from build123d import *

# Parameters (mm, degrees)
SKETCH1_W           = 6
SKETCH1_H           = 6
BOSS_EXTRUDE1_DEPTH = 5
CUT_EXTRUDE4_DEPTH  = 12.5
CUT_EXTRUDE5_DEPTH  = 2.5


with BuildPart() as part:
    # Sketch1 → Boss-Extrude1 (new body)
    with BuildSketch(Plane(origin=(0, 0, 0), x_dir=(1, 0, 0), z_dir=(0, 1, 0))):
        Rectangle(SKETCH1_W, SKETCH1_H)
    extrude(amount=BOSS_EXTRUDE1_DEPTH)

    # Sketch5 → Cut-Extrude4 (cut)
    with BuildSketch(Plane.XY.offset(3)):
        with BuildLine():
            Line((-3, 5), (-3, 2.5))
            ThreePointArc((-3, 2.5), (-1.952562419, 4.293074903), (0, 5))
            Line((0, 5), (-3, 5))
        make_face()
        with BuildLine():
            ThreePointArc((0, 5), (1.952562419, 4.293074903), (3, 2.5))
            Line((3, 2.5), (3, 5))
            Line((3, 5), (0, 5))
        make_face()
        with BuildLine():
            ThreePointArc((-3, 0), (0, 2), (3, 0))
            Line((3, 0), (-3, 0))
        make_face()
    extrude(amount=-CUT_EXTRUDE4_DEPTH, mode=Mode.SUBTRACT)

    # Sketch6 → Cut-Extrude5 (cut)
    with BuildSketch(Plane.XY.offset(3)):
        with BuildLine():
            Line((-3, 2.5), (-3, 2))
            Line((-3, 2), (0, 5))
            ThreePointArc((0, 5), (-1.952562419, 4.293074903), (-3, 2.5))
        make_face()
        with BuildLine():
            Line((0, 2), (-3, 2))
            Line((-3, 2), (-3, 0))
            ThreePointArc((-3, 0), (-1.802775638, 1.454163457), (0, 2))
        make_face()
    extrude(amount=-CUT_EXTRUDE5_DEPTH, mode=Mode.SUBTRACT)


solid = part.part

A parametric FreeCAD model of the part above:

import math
import FreeCAD as App
import Part
import Sketcher
from FreeCAD import Vector
Q = App.Units.Quantity


def add_polygon(sketch, points):
    """Adds a closed chain of lines whose ends are joined by coincident constraints."""
    first, n = sketch.GeometryCount, len(points)
    for a, b in zip(points, points[1:] + points[:1]):
        sketch.addGeometry(Part.LineSegment(App.Vector(*a, 0), App.Vector(*b, 0)), False)
    for i in range(n):
        sketch.addConstraint(Sketcher.Constraint("Coincident", first + i, 2, first + (i + 1) % n, 1))

doc = App.newDocument("Part")
params = doc.addObject("Spreadsheet::Sheet", "Params")
for row, (alias, value) in enumerate([
    ("sketch1_width", "6 mm"),
    ("pad1_length", "5 mm"),
    ("sketch2_width", "3 mm"),
    ("sketch2_radius", "3.05 mm"),
    ("sketch2_radius2", "3.25 mm"),
    ("pocket1_length", "12.5 mm"),
    ("sketch3_width", "3 mm"),
    ("sketch3_height", "2 mm"),
    ("sketch3_radius", "3.05 mm"),
    ("pocket2_length", "2.5 mm"),
], start=1):
    params.set(f"A{row}", alias)
    params.set(f"B{row}", "=" + value)
    params.setAlias(f"B{row}", alias)

body = doc.addObject("PartDesign::Body", "Body")

# Sketch on XZ plane
sketch1 = doc.addObject("Sketcher::SketchObject", "Sketch")
body.addObject(sketch1)
sketch1.AttachmentSupport = (doc.XZ_Plane, [""])
sketch1.MapMode = "FlatFace"
add_polygon(sketch1, [(-3, -3), (-3, 3), (3, 3), (3, -3)])  # lines 0-3
sketch1.addConstraint([
    Sketcher.Constraint("Vertical", 0),
    Sketcher.Constraint("Horizontal", 1),
    Sketcher.Constraint("Vertical", 2),
    Sketcher.Constraint("Horizontal", 3),
    Sketcher.Constraint("Symmetric", 0, 2, 2, 2, -1, 1),
    Sketcher.Constraint("Equal", 3, 0),
    Sketcher.Constraint("DistanceX", 1, 1, 1, 2, 6.0),
])
sketch1.setExpression("Constraints[10]", "Params.sketch1_width")
pad1 = doc.addObject("PartDesign::Pad", "Pad")
body.addObject(pad1)
pad1.Profile = sketch1
pad1.setExpression("Length", "Params.pad1_length")
pad1.Reversed = True

# Sketch on XY plane
sketch2 = doc.addObject("Sketcher::SketchObject", "Sketch001")
body.addObject(sketch2)
sketch2.AttachmentSupport = (doc.XY_Plane, [""])
sketch2.MapMode = "FlatFace"
sketch2.AttachmentOffset = App.Placement(Vector(0, 0, 3), App.Rotation())
sketch2.addGeometry([
    Part.LineSegment(Vector(-3, 5, 0), Vector(-3, 2.5, 0)),  # 0
    Part.ArcOfCircle(Part.Circle(Vector(0, 2, 0), Vector(0, 0, 1), 3), math.radians(90), math.radians(170)),  # 1
    Part.LineSegment(Vector(0, 5, 0), Vector(-3, 5, 0)),  # 2
    Part.ArcOfCircle(Part.Circle(Vector(0, 2, 0), Vector(0, 0, 1), 3), math.radians(10), math.radians(90)),  # 3
    Part.LineSegment(Vector(3, 2.5, 0), Vector(3, 5, 0)),  # 4
    Part.LineSegment(Vector(3, 5, 0), Vector(0, 5, 0)),  # 5
    Part.ArcOfCircle(Part.Circle(Vector(0, -1.2, 0), Vector(0, 0, 1), 3.2), math.radians(23), math.radians(157)),  # 6
    Part.LineSegment(Vector(-3, 0, 0), Vector(3, 0, 0)),  # 7
], False)
sketch2.addConstraint([
    Sketcher.Constraint("Coincident", 0, 2, 1, 2),
    Sketcher.Constraint("Tangent", 1, 1, 2, 1),
    Sketcher.Constraint("Coincident", 2, 2, 0, 1),
    Sketcher.Constraint("Coincident", 3, 1, 4, 1),
    Sketcher.Constraint("Coincident", 4, 2, 5, 1),
    Sketcher.Constraint("Tangent", 5, 2, 3, 2),
    Sketcher.Constraint("Coincident", 6, 1, 7, 2),
    Sketcher.Constraint("Coincident", 7, 1, 6, 2),
    Sketcher.Constraint("Vertical", 0),
    Sketcher.Constraint("Horizontal", 2),
    Sketcher.Constraint("Vertical", 4),
    Sketcher.Constraint("Horizontal", 5),
    Sketcher.Constraint("Horizontal", 7),
    Sketcher.Constraint("Coincident", 3, 3, 1, 3),
    Sketcher.Constraint("Equal", 1, 3),
    Sketcher.Constraint("Symmetric", 6, 1, 7, 1, -1, 1),
    Sketcher.Constraint("Symmetric", 0, 2, 3, 1, -2),
    Sketcher.Constraint("Vertical", 4, 2, 6, 1),
    Sketcher.Constraint("DistanceX", 2, 2, 2, 1, 3.0),
    Sketcher.Constraint("Radius", 1, 3.05),
    Sketcher.Constraint("Radius", 6, 3.25),
    Sketcher.Constraint("DistanceY", -1, 1, 1, 1, 5.0),
])
sketch2.setExpression("Constraints[18]", "Params.sketch2_width")
sketch2.setExpression("Constraints[19]", "Params.sketch2_radius")
sketch2.setExpression("Constraints[20]", "Params.sketch2_radius2")
pocket1 = doc.addObject("PartDesign::Pocket", "Pocket")
body.addObject(pocket1)
pocket1.Profile = sketch2
pocket1.setExpression("Length", "Params.pocket1_length")

# Sketch on XY plane
sketch3 = doc.addObject("Sketcher::SketchObject", "Sketch002")
body.addObject(sketch3)
sketch3.AttachmentSupport = (doc.XY_Plane, [""])
sketch3.MapMode = "FlatFace"
sketch3.AttachmentOffset = App.Placement(Vector(0, 0, 3), App.Rotation())
sketch3.addGeometry([
    Part.LineSegment(Vector(-3, 2.5, 0), Vector(-3, 2, 0)),  # 0
    Part.LineSegment(Vector(-3, 2, 0), Vector(0, 5, 0)),  # 1
    Part.ArcOfCircle(Part.Circle(Vector(0, 2, 0), Vector(0, 0, 1), 3), math.radians(90), math.radians(170)),  # 2
    Part.LineSegment(Vector(0, 2, 0), Vector(-3, 2, 0)),  # 3
    Part.LineSegment(Vector(-3, 2, 0), Vector(-3, 0, 0)),  # 4
    Part.ArcOfCircle(Part.Circle(Vector(0, -1.2, 0), Vector(0, 0, 1), 3.2), math.radians(90), math.radians(157)),  # 5
], False)
sketch3.addConstraint([
    Sketcher.Constraint("Coincident", 0, 2, 1, 1),
    Sketcher.Constraint("Coincident", 1, 2, 2, 1),
    Sketcher.Constraint("Coincident", 2, 2, 0, 1),
    Sketcher.Constraint("Coincident", 3, 2, 4, 1),
    Sketcher.Constraint("Coincident", 4, 2, 5, 2),
    Sketcher.Constraint("Tangent", 5, 1, 3, 1),
    Sketcher.Constraint("Vertical", 0),
    Sketcher.Constraint("Horizontal", 3),
    Sketcher.Constraint("Vertical", 4),
    Sketcher.Constraint("Coincident", 3, 2, 0, 2),
    Sketcher.Constraint("PointOnObject", 2, 3, -2),
    Sketcher.Constraint("PointOnObject", 5, 3, -2),
    Sketcher.Constraint("PointOnObject", 1, 2, -2),
    Sketcher.Constraint("PointOnObject", 4, 2, -1),
    Sketcher.Constraint("DistanceX", 3, 2, 3, 1, 3.0),
    Sketcher.Constraint("DistanceY", 4, 2, 4, 1, 2.0),
    Sketcher.Constraint("Angle", 1, Q("45 deg")),
    Sketcher.Constraint("Radius", 2, 3.05),
])
sketch3.setExpression("Constraints[14]", "Params.sketch3_width")
sketch3.setExpression("Constraints[15]", "Params.sketch3_height")
sketch3.setExpression("Constraints[17]", "Params.sketch3_radius")
pocket2 = doc.addObject("PartDesign::Pocket", "Pocket001")
body.addObject(pocket2)
pocket2.Profile = sketch3
pocket2.setExpression("Length", "Params.pocket2_length")

doc.recompute()
